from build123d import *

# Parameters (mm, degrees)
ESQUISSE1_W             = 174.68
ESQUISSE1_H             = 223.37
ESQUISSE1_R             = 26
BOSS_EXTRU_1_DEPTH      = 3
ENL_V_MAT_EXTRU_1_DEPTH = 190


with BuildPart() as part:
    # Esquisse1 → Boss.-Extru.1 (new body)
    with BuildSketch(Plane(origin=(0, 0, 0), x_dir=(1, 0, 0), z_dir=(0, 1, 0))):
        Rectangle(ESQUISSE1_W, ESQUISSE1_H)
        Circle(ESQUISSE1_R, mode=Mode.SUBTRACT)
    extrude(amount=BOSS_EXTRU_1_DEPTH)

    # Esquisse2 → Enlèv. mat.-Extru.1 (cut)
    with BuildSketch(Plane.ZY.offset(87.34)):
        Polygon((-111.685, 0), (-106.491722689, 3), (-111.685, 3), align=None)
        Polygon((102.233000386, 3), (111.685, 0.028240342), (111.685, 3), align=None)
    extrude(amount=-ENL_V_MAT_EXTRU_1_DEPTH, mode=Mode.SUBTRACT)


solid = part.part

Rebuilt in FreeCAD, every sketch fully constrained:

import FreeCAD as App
import Part
import Sketcher

V = App.Vector

doc = App.newDocument("Part")
params = doc.addObject("Spreadsheet::Sheet", "Params")
for row, (alias, value) in enumerate([
    ("sketch1_diameter", "52 mm"),
    ("sketch1_width", "174.68 mm"),
    ("sketch1_height", "223.37 mm"),
    ("pad1_length", "3 mm"),
    ("sketch2_width", "3 mm"),
    ("pocket1_length", "190 mm"),
], start=1):
    params.set(f"A{row}", alias)
    params.set(f"B{row}", "=" + value)
    params.setAlias(f"B{row}", alias)

body = doc.addObject("PartDesign::Body", "Body")

# Sketch on XZ plane
sketch1 = body.newObject("Sketcher::SketchObject", "Sketch")
sketch1.AttachmentSupport = (doc.getObject("XZ_Plane"), [""])
sketch1.MapMode = "FlatFace"
sketch1.addGeometry([
    Part.LineSegment(V(-87, -112, 0), V(-87, 112, 0)),  # 0
    Part.LineSegment(V(-87, 112, 0), V(87, 112, 0)),  # 1
    Part.LineSegment(V(87, 112, 0), V(87, -112, 0)),  # 2
    Part.LineSegment(V(87, -112, 0), V(-87, -112, 0)),  # 3
    Part.Circle(V(0, 0, 0), V(0, 0, 1), 26),  # 4
], False)
sketch1.addConstraint([
    Sketcher.Constraint("Coincident", 0, 2, 1, 1),
    Sketcher.Constraint("Coincident", 1, 2, 2, 1),
    Sketcher.Constraint("Coincident", 2, 2, 3, 1),
    Sketcher.Constraint("Coincident", 3, 2, 0, 1),
    Sketcher.Constraint("Vertical", 0),
    Sketcher.Constraint("Horizontal", 1),
    Sketcher.Constraint("Vertical", 2),
    Sketcher.Constraint("Horizontal", 3),
    Sketcher.Constraint("Coincident", 4, 3, -1, 1),
    Sketcher.Constraint("Symmetric", 0, 2, 2, 2, -1, 1),
    Sketcher.Constraint("Diameter", 4, 52.0),
    Sketcher.Constraint("DistanceX", 1, 1, 1, 2, 174.68),
    Sketcher.Constraint("DistanceY", 0, 1, 0, 2, 223.37),
])
sketch1.setExpression("Constraints[10]", "Params.sketch1_diameter")
sketch1.setExpression("Constraints[11]", "Params.sketch1_width")
sketch1.setExpression("Constraints[12]", "Params.sketch1_height")
pad1 = body.newObject("PartDesign::Pad", "Pad")
pad1.Profile = sketch1
pad1.setExpression("Length", "Params.pad1_length")
pad1.Reversed = True

# Sketch on YZ plane
sketch2 = body.newObject("Sketcher::SketchObject", "Sketch001")
sketch2.AttachmentSupport = (doc.getObject("YZ_Plane"), [""])
sketch2.MapMode = "FlatFace"
sketch2.AttachmentOffset = App.Placement(V(0, 0, -87.34), App.Rotation())
sketch2.addGeometry([
    Part.LineSegment(V(0, -111.7, 0), V(3, -106.5, 0)),  # 0
    Part.LineSegment(V(3, -106.5, 0), V(3, -111.7, 0)),  # 1
    Part.LineSegment(V(3, -111.7, 0), V(0, -111.7, 0)),  # 2
    Part.LineSegment(V(3, 102.2, 0), V(0, 111.7, 0)),  # 3
    Part.LineSegment(V(0, 111.7, 0), V(3, 111.7, 0)),  # 4
    Part.LineSegment(V(3, 111.7, 0), V(3, 102.2, 0)),  # 5
], False)
sketch2.addConstraint([
    Sketcher.Constraint("Coincident", 0, 2, 1, 1),
    Sketcher.Constraint("Coincident", 1, 2, 2, 1),
    Sketcher.Constraint("Coincident", 2, 2, 0, 1),
    Sketcher.Constraint("Coincident", 3, 2, 4, 1),
    Sketcher.Constraint("Coincident", 4, 2, 5, 1),
    Sketcher.Constraint("Coincident", 5, 2, 3, 1),
    Sketcher.Constraint("Vertical", 1),
    Sketcher.Constraint("Horizontal", 2),
    Sketcher.Constraint("Horizontal", 4),
    Sketcher.Constraint("Vertical", 5),
    Sketcher.Constraint("Symmetric", 1, 2, 4, 2, -1),
    Sketcher.Constraint("PointOnObject", 2, 2, -2),
    Sketcher.Constraint("DistanceX", 2, 2, 2, 1, 3.0),
    Sketcher.Constraint("DistanceY", 5, 2, 5, 1, 9.452),
    Sketcher.Constraint("DistanceY", 2, 2, 3, 2, 223.37),
    Sketcher.Constraint("DistanceX", 4, 1, 4, 2, 2.97176),
    Sketcher.Constraint("Distance", 0, 5.99751),
])
sketch2.setExpression("Constraints[12]", "Params.sketch2_width")
pocket1 = body.newObject("PartDesign::Pocket", "Pocket")
pocket1.Profile = sketch2
pocket1.setExpression("Length", "Params.pocket1_length")
pocket1.Reversed = True

doc.recompute()
